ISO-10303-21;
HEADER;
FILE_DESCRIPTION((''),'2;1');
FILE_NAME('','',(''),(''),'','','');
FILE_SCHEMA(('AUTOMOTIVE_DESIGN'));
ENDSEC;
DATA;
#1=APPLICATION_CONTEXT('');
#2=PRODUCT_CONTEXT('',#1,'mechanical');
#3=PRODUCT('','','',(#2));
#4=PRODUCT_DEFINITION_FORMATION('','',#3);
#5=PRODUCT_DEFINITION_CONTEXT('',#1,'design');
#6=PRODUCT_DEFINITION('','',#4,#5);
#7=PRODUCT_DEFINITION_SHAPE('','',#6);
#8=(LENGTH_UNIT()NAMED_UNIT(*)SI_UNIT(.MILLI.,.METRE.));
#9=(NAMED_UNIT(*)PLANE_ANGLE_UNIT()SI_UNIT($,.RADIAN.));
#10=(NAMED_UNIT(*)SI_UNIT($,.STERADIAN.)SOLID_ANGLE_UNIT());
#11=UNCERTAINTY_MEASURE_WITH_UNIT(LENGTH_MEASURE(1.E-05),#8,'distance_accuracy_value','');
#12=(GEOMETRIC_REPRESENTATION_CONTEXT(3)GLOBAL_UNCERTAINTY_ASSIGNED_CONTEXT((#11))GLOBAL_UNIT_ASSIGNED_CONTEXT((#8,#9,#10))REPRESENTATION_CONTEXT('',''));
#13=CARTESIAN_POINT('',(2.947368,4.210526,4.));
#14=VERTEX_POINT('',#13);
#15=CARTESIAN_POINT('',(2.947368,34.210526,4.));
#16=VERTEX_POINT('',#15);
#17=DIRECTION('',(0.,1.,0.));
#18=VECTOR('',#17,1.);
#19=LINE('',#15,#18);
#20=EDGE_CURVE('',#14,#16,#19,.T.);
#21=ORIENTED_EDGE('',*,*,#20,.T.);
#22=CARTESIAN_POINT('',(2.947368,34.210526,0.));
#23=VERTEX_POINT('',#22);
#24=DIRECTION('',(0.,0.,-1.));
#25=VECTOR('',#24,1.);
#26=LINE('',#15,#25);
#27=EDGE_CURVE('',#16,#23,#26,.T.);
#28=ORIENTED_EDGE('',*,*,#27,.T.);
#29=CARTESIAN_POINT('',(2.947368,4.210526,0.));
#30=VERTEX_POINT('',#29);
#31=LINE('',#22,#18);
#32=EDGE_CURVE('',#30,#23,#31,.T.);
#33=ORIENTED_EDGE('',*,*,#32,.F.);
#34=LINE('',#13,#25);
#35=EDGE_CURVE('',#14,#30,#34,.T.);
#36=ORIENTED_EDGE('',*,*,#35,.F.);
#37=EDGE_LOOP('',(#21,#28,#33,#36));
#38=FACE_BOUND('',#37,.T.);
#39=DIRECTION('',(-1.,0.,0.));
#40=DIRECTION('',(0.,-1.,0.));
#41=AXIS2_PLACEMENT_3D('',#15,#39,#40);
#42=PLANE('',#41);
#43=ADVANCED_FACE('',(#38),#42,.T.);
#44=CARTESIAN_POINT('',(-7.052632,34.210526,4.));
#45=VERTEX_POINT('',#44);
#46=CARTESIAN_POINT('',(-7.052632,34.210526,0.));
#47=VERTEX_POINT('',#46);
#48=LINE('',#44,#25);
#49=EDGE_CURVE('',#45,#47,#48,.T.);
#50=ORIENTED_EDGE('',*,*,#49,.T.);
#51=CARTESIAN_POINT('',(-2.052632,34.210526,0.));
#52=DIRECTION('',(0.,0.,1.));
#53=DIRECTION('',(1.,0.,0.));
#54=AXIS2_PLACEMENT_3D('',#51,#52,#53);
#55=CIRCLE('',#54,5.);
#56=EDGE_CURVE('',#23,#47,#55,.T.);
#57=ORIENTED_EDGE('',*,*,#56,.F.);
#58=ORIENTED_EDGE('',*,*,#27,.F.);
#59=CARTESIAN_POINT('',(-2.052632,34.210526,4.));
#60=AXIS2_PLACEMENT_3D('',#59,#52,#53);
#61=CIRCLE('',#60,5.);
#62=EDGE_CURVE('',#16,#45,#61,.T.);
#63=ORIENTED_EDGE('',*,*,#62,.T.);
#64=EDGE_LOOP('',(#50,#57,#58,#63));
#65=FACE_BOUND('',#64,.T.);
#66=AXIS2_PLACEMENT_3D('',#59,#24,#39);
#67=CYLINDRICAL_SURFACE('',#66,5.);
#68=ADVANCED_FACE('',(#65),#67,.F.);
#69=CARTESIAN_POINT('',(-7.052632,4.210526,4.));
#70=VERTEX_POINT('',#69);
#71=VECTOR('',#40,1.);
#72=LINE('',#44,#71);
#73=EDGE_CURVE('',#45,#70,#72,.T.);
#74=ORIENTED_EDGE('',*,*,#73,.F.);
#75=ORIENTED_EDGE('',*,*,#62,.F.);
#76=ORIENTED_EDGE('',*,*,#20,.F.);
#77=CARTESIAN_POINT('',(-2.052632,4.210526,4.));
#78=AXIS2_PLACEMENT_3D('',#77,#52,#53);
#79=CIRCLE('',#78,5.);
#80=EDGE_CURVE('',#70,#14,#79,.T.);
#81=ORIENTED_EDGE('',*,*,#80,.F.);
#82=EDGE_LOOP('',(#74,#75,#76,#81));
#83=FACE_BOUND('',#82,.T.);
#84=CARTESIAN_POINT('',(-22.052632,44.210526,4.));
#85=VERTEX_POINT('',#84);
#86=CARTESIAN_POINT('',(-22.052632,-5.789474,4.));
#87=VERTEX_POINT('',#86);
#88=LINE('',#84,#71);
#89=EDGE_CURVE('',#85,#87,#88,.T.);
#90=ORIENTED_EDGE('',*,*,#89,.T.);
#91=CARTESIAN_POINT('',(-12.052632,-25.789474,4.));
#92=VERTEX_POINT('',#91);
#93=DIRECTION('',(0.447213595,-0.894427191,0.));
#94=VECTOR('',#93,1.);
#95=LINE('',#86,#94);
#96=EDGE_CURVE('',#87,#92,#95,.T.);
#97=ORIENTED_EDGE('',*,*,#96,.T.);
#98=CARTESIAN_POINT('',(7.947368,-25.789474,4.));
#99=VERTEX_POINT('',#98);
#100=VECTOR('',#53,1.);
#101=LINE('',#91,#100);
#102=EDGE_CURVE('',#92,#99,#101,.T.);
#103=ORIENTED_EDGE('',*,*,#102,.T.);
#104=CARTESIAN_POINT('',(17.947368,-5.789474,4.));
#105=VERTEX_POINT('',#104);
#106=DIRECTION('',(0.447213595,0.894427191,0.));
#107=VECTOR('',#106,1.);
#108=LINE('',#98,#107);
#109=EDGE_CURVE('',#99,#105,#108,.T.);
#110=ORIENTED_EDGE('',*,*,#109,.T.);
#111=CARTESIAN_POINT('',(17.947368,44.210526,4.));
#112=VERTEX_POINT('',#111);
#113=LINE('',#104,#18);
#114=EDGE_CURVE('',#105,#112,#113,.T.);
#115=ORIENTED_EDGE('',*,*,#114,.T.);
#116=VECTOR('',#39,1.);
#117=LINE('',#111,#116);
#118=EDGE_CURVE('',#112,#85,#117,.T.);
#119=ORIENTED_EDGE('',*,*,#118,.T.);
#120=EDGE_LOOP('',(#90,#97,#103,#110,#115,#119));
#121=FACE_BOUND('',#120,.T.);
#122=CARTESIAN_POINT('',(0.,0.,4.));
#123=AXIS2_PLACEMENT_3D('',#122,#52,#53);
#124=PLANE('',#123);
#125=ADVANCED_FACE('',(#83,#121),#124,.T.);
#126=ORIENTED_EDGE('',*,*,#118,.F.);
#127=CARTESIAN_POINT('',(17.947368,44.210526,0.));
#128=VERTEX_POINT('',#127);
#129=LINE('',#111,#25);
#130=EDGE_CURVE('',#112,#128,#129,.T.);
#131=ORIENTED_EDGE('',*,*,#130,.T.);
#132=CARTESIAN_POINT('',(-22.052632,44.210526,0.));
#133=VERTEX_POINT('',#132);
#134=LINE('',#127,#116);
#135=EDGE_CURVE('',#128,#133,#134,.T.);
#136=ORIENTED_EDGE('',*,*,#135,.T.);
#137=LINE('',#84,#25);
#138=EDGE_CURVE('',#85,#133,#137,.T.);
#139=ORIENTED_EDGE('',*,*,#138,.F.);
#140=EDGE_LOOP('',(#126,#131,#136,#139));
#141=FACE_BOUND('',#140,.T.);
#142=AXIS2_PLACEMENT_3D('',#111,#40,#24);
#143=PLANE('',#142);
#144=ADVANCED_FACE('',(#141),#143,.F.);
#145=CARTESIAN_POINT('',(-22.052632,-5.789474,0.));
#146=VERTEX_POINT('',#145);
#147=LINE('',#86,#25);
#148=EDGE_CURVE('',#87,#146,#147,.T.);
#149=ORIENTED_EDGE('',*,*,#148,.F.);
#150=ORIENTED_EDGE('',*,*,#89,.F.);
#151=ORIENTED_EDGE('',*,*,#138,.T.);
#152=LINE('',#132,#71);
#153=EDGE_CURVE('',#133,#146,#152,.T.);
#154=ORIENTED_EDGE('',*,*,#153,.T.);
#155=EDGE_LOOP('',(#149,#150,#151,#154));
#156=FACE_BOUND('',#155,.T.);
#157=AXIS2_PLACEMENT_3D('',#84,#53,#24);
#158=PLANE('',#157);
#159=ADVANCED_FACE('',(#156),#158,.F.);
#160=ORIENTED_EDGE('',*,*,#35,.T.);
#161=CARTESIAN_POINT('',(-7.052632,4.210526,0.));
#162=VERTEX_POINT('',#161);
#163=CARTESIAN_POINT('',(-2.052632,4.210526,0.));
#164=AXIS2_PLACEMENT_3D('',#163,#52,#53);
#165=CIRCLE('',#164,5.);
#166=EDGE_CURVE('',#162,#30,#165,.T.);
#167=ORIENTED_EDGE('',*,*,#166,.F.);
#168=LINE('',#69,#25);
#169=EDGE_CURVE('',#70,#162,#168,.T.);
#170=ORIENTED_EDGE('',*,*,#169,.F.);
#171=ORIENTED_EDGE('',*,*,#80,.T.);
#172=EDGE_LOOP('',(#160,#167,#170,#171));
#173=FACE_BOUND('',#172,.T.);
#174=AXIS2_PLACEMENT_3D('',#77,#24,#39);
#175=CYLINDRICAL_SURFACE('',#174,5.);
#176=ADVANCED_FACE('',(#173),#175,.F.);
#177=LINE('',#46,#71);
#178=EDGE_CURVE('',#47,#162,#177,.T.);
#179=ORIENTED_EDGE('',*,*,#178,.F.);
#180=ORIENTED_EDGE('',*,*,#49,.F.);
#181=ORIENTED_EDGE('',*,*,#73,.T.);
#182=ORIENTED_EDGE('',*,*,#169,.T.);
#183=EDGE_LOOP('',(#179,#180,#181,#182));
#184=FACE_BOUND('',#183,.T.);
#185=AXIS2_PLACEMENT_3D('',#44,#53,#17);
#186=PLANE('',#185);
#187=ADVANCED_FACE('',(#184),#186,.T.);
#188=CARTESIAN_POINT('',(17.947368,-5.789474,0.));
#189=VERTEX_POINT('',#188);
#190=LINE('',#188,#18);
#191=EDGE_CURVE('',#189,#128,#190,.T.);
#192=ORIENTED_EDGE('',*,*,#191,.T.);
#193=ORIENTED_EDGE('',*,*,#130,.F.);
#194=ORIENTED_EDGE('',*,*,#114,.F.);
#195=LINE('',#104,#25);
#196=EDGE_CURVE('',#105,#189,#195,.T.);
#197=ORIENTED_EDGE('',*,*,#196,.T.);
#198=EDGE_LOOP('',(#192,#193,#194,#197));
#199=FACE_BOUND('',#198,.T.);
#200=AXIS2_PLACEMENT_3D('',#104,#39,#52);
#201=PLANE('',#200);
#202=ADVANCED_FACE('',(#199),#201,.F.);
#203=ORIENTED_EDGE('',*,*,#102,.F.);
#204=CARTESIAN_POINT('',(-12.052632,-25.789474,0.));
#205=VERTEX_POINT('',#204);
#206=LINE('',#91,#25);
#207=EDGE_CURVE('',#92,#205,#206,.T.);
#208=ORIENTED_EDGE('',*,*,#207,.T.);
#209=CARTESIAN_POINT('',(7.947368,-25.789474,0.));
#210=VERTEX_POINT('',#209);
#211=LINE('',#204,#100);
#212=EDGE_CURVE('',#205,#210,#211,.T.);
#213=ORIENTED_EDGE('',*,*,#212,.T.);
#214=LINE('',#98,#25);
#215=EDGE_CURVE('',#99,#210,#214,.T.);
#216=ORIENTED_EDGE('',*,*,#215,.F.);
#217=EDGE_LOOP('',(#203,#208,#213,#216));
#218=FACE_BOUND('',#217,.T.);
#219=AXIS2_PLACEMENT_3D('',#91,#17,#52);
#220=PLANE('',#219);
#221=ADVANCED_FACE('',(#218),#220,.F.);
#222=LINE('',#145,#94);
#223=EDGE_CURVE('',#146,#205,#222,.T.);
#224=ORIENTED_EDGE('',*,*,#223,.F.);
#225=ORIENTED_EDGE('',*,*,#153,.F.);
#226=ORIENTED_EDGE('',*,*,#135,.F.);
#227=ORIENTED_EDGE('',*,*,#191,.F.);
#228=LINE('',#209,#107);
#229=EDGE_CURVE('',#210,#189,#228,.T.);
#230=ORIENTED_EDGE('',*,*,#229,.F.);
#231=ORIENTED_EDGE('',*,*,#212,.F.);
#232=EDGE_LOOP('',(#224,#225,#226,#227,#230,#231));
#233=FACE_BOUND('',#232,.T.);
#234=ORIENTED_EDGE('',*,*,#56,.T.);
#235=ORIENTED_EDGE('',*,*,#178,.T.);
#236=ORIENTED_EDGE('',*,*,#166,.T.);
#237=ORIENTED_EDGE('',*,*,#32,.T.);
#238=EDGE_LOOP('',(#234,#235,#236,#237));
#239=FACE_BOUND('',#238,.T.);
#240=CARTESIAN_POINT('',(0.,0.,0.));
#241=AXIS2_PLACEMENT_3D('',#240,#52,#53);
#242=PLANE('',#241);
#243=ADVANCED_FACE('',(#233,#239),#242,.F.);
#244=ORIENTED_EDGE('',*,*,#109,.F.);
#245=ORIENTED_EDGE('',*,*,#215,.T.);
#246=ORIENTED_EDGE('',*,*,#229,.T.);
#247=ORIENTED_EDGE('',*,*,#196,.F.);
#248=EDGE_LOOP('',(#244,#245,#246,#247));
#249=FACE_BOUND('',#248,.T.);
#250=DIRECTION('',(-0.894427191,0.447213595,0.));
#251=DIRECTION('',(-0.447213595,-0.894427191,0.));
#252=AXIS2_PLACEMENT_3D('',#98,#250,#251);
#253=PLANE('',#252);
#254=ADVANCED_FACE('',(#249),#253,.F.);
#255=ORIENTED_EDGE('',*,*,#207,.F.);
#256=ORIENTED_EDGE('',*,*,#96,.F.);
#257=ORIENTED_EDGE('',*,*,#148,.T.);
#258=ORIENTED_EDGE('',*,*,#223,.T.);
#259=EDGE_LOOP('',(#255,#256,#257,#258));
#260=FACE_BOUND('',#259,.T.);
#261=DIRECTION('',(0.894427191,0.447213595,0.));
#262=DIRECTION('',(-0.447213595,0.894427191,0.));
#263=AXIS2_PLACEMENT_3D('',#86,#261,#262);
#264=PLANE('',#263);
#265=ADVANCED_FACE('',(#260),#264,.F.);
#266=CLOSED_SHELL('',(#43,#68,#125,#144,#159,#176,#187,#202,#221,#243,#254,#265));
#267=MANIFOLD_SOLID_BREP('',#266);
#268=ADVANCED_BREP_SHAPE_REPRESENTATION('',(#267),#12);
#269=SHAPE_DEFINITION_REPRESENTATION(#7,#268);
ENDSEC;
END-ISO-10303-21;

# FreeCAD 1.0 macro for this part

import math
import FreeCAD as App
import Part
import Sketcher
from FreeCAD import Vector


def add_polygon(sketch, points):
    """Adds a closed chain of lines whose ends are joined by coincident constraints."""
    first, n = sketch.GeometryCount, len(points)
    for a, b in zip(points, points[1:] + points[:1]):
        sketch.addGeometry(Part.LineSegment(App.Vector(*a, 0), App.Vector(*b, 0)), False)
    for i in range(n):
        sketch.addConstraint(Sketcher.Constraint("Coincident", first + i, 2, first + (i + 1) % n, 1))

doc = App.newDocument("Part")
body = doc.addObject("PartDesign::Body", "Body")

# Sketch on XY plane
sketch1 = body.newObject("Sketcher::SketchObject", "Sketch")
sketch1.AttachmentSupport = (doc.getObject("XY_Plane"), [""])
sketch1.MapMode = "FlatFace"
add_polygon(sketch1, [(17.947368, 44.210526), (-22.052632, 44.210526), (-22.052632, -5.789474), (-12.052632, -25.789474), (7.947368, -25.789474), (17.947368, -5.789474)])  # lines 0-5
sketch1.addGeometry(Part.ArcOfCircle(Part.Circle(Vector(-2.052632, 34.210526, 0), Vector(0, 0, 1), 5), math.radians(0), math.radians(180)), False)  # 6
sketch1.addGeometry(Part.LineSegment(Vector(2.947368, 34.210526, 0), Vector(2.947368, 4.210526, 0)), False)  # 7
sketch1.addGeometry(Part.ArcOfCircle(Part.Circle(Vector(-2.052632, 4.210526, 0), Vector(0, 0, 1), 5), math.radians(180), math.radians(360)), False)  # 8
sketch1.addGeometry(Part.LineSegment(Vector(-7.052632, 4.210526, 0), Vector(-7.052632, 34.210526, 0)), False)  # 9
sketch1.addConstraint([
    Sketcher.Constraint("Tangent", 6, 1, 7, 1),
    Sketcher.Constraint("Tangent", 7, 2, 8, 2),
    Sketcher.Constraint("Tangent", 8, 1, 9, 1),
    Sketcher.Constraint("Tangent", 9, 2, 6, 2),
    Sketcher.Constraint("Horizontal", 0),
    Sketcher.Constraint("Vertical", 1),
    Sketcher.Constraint("Horizontal", 3),
    Sketcher.Constraint("Vertical", 5),
    Sketcher.Constraint("Vertical", 7),
    Sketcher.Constraint("Vertical", 9),
    Sketcher.Constraint("Horizontal", 1, 2, 4, 2),
    Sketcher.Constraint("Equal", 2, 4),
    Sketcher.Constraint("Radius", 6, 5.0),
    Sketcher.Constraint("DistanceX", 0, 2, 0, 1, 40.0),
    Sketcher.Constraint("DistanceX", 3, 1, 3, 2, 20.0),
    Sketcher.Constraint("DistanceY", 1, 2, 1, 1, 50.0),
    Sketcher.Constraint("DistanceY", 7, 2, 7, 1, 30.0),
    Sketcher.Constraint("DistanceX", 0, 2, 6, 3, 20.0),
    Sketcher.Constraint("DistanceY", 6, 3, 0, 2, 10.0),
    Sketcher.Constraint("DistanceY", 2, 2, 1, 2, 20.0),
    Sketcher.Constraint("DistanceX", 6, 3, -1, 1, 2.052632),
    Sketcher.Constraint("DistanceY", -1, 1, 6, 3, 34.210526),
])
pad1 = body.newObject("PartDesign::Pad", "Pad")
pad1.Profile = sketch1
pad1.Length = 4

doc.recompute()
